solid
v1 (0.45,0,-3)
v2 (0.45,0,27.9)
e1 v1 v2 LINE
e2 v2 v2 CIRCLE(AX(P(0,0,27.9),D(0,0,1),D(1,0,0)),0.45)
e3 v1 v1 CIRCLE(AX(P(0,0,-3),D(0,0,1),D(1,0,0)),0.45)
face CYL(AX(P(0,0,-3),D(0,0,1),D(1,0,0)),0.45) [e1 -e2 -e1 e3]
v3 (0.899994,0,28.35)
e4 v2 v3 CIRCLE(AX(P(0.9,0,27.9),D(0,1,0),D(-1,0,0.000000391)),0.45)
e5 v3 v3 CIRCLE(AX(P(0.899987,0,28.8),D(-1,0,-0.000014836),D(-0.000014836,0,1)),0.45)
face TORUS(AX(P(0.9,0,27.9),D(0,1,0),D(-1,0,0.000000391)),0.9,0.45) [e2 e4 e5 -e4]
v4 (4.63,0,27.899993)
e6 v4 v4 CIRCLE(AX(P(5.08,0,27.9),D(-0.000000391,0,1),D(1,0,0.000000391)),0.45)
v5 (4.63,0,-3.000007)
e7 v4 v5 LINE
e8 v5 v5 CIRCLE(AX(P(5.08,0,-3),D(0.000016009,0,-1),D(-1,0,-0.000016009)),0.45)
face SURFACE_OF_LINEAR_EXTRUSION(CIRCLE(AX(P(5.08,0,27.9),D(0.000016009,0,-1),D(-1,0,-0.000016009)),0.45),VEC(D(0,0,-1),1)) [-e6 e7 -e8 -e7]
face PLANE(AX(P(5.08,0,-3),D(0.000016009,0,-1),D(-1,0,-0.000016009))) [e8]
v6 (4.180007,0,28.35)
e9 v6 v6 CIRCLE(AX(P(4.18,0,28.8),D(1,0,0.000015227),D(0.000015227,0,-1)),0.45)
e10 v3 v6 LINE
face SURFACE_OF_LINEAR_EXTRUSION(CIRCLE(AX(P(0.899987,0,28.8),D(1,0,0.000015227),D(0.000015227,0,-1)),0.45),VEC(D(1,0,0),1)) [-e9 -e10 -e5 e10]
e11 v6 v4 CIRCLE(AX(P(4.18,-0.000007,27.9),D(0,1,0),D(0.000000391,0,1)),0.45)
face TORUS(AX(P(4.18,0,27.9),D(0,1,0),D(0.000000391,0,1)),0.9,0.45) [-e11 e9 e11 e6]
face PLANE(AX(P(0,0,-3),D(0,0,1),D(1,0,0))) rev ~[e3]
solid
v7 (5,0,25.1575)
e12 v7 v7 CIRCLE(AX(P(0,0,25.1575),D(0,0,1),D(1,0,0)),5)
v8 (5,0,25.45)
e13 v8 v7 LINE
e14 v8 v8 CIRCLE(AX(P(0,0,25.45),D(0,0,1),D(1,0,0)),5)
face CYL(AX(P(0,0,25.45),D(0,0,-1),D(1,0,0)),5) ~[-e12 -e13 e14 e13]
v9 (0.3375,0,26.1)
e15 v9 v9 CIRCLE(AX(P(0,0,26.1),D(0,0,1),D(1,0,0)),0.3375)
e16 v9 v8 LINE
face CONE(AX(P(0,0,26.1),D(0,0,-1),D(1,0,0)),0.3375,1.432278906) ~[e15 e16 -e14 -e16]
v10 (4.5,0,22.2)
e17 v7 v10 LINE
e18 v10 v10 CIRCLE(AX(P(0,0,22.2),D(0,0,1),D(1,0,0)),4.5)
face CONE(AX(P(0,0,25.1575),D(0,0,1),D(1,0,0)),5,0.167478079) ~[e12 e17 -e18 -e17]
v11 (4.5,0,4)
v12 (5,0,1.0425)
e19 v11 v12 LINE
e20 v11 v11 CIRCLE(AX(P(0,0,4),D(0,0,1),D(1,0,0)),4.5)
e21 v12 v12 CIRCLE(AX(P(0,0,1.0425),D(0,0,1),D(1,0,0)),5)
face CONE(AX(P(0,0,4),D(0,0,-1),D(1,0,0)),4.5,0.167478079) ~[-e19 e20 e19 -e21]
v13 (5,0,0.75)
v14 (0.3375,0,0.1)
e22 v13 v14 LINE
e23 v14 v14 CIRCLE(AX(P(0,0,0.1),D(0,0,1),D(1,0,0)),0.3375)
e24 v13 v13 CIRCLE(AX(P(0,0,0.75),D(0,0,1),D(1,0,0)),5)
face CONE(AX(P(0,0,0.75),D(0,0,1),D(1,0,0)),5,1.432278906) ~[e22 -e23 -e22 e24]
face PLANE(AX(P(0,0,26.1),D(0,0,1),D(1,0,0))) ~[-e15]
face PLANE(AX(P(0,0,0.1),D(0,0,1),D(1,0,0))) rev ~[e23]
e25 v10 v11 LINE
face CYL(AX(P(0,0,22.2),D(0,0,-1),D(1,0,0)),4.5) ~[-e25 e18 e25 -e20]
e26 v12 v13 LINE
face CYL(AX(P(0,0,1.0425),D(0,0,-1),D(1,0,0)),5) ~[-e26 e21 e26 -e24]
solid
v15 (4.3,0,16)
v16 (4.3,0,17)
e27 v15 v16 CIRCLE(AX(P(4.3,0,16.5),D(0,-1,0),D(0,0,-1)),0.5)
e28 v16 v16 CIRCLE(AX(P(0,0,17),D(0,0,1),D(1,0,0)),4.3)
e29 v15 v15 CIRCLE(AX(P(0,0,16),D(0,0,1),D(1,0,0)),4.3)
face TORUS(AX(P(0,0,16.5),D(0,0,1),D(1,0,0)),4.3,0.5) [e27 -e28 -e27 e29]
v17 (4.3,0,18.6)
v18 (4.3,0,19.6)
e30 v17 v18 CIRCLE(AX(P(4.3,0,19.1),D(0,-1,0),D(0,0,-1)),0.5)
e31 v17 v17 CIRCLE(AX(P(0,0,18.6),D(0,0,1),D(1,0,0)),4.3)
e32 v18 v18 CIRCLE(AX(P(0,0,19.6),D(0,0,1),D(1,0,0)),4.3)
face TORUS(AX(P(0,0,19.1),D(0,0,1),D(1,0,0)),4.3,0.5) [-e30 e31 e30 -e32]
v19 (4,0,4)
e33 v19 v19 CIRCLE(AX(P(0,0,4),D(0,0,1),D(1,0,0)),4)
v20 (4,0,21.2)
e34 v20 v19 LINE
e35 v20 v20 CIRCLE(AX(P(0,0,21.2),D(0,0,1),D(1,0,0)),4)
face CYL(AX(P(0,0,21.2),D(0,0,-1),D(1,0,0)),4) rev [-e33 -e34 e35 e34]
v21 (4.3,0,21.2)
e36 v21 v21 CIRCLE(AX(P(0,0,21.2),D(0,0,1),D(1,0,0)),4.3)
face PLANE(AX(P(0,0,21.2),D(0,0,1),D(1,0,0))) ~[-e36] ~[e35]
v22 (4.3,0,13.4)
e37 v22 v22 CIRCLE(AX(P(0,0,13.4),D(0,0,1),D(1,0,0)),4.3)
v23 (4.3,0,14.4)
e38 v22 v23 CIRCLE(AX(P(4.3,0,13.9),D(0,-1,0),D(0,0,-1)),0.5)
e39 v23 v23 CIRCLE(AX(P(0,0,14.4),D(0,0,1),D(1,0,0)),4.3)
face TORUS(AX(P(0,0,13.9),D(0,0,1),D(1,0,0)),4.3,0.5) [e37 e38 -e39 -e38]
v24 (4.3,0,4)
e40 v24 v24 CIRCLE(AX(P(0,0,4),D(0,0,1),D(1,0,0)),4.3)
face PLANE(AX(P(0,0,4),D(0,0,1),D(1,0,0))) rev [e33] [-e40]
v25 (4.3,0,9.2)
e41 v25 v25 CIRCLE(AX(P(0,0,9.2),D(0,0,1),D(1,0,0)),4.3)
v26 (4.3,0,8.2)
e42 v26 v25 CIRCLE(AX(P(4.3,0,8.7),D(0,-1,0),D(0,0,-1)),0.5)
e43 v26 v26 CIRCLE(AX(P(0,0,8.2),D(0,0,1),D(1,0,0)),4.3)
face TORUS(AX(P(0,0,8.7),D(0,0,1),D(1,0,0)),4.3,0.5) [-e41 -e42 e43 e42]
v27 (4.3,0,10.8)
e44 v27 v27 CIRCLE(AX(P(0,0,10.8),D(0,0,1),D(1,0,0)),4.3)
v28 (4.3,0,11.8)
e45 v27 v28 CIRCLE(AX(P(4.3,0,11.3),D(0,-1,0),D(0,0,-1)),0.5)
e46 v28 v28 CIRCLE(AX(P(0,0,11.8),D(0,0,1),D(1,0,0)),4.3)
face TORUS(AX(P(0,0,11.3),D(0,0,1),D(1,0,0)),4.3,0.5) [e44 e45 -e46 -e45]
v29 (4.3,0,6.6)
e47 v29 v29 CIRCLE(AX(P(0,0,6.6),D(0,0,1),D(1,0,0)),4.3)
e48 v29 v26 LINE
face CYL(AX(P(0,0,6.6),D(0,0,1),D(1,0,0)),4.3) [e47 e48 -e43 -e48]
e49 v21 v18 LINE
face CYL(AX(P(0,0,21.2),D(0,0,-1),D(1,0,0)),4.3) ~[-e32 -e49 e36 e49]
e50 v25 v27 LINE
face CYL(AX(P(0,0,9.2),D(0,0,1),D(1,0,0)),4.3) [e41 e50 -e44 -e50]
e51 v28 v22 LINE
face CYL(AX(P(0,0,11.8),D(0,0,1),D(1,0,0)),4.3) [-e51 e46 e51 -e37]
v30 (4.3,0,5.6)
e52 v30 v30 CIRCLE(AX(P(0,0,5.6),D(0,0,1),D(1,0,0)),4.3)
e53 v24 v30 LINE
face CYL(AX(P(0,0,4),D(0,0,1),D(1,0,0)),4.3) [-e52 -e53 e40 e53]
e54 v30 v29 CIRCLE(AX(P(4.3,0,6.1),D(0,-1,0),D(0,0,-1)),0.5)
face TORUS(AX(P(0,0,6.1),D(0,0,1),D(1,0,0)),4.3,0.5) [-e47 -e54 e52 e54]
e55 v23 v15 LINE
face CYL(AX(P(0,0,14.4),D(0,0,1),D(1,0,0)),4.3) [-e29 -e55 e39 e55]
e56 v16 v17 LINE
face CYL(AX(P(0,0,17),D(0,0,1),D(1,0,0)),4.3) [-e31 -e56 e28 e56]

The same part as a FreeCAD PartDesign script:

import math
import FreeCAD as App
import Part
import Sketcher
from FreeCAD import Vector
Q = App.Units.Quantity


def add_polygon(sketch, points):
    """Adds a closed chain of lines whose ends are joined by coincident constraints."""
    first, n = sketch.GeometryCount, len(points)
    for a, b in zip(points, points[1:] + points[:1]):
        sketch.addGeometry(Part.LineSegment(App.Vector(*a, 0), App.Vector(*b, 0)), False)
    for i in range(n):
        sketch.addConstraint(Sketcher.Constraint("Coincident", first + i, 2, first + (i + 1) % n, 1))

doc = App.newDocument("Part")
body = doc.addObject("PartDesign::Body", "Body")

# Sketch on XY plane
sketch1 = body.newObject("Sketcher::SketchObject", "Sketch")
sketch1.AttachmentSupport = (doc.getObject("XY_Plane"), [""])
sketch1.MapMode = "FlatFace"
sketch1.AttachmentOffset = App.Placement(Vector(0, 0, -2), App.Rotation())
sketch1.addGeometry(Part.Circle(Vector(0, 0, 0), Vector(0, 0, 1), 0.45), False)
sketch1.addConstraint([
    Sketcher.Constraint("Coincident", 0, 3, -1, 1),
    Sketcher.Constraint("Diameter", 0, Q("0.9 mm")),
])

# Sketch on XZ plane
sketch2 = body.newObject("Sketcher::SketchObject", "Sketch001")
sketch2.AttachmentSupport = (doc.getObject("XZ_Plane"), [""])
sketch2.MapMode = "FlatFace"
sketch2.addGeometry([
    Part.LineSegment(Vector(0, -3, 0), Vector(0, 27.9, 0)),  # 0
    Part.ArcOfCircle(Part.Circle(Vector(0.9, 27.9, 0), Vector(0, 0, 1), 0.9), math.radians(90), math.radians(180)),  # 1
    Part.LineSegment(Vector(0.9, 28.8, 0), Vector(4.2, 28.8, 0)),  # 2
    Part.ArcOfCircle(Part.Circle(Vector(4.2, 27.9, 0), Vector(0, 0, 1), 0.9), math.radians(0), math.radians(90)),  # 3
    Part.LineSegment(Vector(5.1, 27.9, 0), Vector(5.1, -3, 0)),  # 4
], False)
sketch2.addConstraint([
    Sketcher.Constraint("Tangent", 0, 2, 1, 2),
    Sketcher.Constraint("Coincident", 1, 1, 2, 1),
    Sketcher.Constraint("Tangent", 2, 2, 3, 2),
    Sketcher.Constraint("Tangent", 3, 1, 4, 1),
    Sketcher.Constraint("Vertical", 0),
    Sketcher.Constraint("Horizontal", 2),
    Sketcher.Constraint("Vertical", 4),
    Sketcher.Constraint("Equal", 1, 3),
    Sketcher.Constraint("PointOnObject", 0, 1, -2),
    Sketcher.Constraint("Horizontal", 0, 1, 4, 2),
    Sketcher.Constraint("Radius", 1, Q("0.9 mm")),
    Sketcher.Constraint("DistanceY", 0, 1, 0, 2, Q("30.9 mm")),
    Sketcher.Constraint("DistanceY", 0, 1, -1, 1, Q("3 mm")),
    Sketcher.Constraint("DistanceX", -1, 1, 3, 3, Q("4.18 mm")),
    Sketcher.Constraint("DistanceX", 2, 1, 2, 2, Q("3.280013 mm")),
])
doc.recompute()

additivepipe = body.newObject("PartDesign::AdditivePipe", "AdditivePipe")
additivepipe.Profile = sketch1
additivepipe.Spine = (sketch2, ["Edge1", "Edge2", "Edge3", "Edge4", "Edge5"])
body2 = doc.addObject("PartDesign::Body", "Body001")

# Sketch on XZ plane
sketch3 = body2.newObject("Sketcher::SketchObject", "Sketch002")
sketch3.AttachmentSupport = (doc.getObject("XZ_Plane001"), [""])
sketch3.MapMode = "FlatFace"
add_polygon(sketch3, [(0, 26.1), (0, 0.1), (0.34, 0.1), (5, 0.75), (5, 1.04), (4.5, 4), (4.5, 22.2), (5, 25.16), (5, 25.45), (0.34, 26.1)])  # lines 0-9
sketch3.addConstraint([
    Sketcher.Constraint("Vertical", 0),
    Sketcher.Constraint("Horizontal", 1),
    Sketcher.Constraint("Vertical", 3),
    Sketcher.Constraint("Vertical", 5),
    Sketcher.Constraint("Vertical", 7),
    Sketcher.Constraint("Horizontal", 9),
    Sketcher.Constraint("PointOnObject", 0, 2, -2),
    Sketcher.Constraint("Vertical", 3, 2, 6, 2),
    Sketcher.Constraint("Vertical", 1, 2, 8, 2),
    Sketcher.Constraint("Equal", 3, 7),
    Sketcher.Constraint("Equal", 4, 6),
    Sketcher.Constraint("Equal", 2, 8),
    Sketcher.Constraint("DistanceY", 0, 2, 0, 1, Q("26 mm")),
    Sketcher.Constraint("DistanceY", 5, 1, 5, 2, Q("18.2 mm")),
    Sketcher.Constraint("DistanceX", -1, 1, 2, 2, Q("5 mm")),
    Sketcher.Constraint("DistanceY", -1, 1, 4, 2, Q("4 mm")),
    Sketcher.Constraint("DistanceX", -1, 1, 4, 2, Q("4.5 mm")),
    Sketcher.Constraint("DistanceY", 2, 2, 7, 2, Q("24.7 mm")),
    Sketcher.Constraint("DistanceX", 1, 1, 1, 2, Q("0.3375 mm")),
    Sketcher.Constraint("DistanceY", 3, 1, 3, 2, Q("0.2925 mm")),
])
revolution = body2.newObject("PartDesign::Revolution", "Revolution")
revolution.Profile = sketch3
revolution.ReferenceAxis = (sketch3, ["V_Axis"])
revolution.Angle = 360
body3 = doc.addObject("PartDesign::Body", "Body002")

# Sketch on XZ plane
sketch4 = body3.newObject("Sketcher::SketchObject", "Sketch003")
sketch4.AttachmentSupport = (doc.getObject("XZ_Plane002"), [""])
sketch4.MapMode = "FlatFace"
sketch4.addGeometry([
    Part.LineSegment(Vector(4, 21.2, 0), Vector(4, 4, 0)),  # 0
    Part.LineSegment(Vector(4, 4, 0), Vector(4.3, 4, 0)),  # 1
    Part.LineSegment(Vector(4.3, 4, 0), Vector(4.3, 5.6, 0)),  # 2
    Part.ArcOfCircle(Part.Circle(Vector(4.3, 6.1, 0), Vector(0, 0, 1), 0.5), math.radians(-90), math.radians(90)),  # 3
    Part.LineSegment(Vector(4.3, 6.6, 0), Vector(4.3, 8.2, 0)),  # 4
    Part.ArcOfCircle(Part.Circle(Vector(4.3, 8.7, 0), Vector(0, 0, 1), 0.5), math.radians(-90), math.radians(90)),  # 5
    Part.LineSegment(Vector(4.3, 9.2, 0), Vector(4.3, 10.8, 0)),  # 6
    Part.ArcOfCircle(Part.Circle(Vector(4.3, 11.3, 0), Vector(0, 0, 1), 0.5), math.radians(-90), math.radians(90)),  # 7
    Part.LineSegment(Vector(4.3, 11.8, 0), Vector(4.3, 13.4, 0)),  # 8
    Part.ArcOfCircle(Part.Circle(Vector(4.3, 13.9, 0), Vector(0, 0, 1), 0.5), math.radians(-90), math.radians(90)),  # 9
    Part.LineSegment(Vector(4.3, 14.4, 0), Vector(4.3, 16, 0)),  # 10
    Part.ArcOfCircle(Part.Circle(Vector(4.3, 16.5, 0), Vector(0, 0, 1), 0.5), math.radians(-90), math.radians(90)),  # 11
    Part.LineSegment(Vector(4.3, 17, 0), Vector(4.3, 18.6, 0)),  # 12
    Part.ArcOfCircle(Part.Circle(Vector(4.3, 19.1, 0), Vector(0, 0, 1), 0.5), math.radians(-90), math.radians(90)),  # 13
    Part.LineSegment(Vector(4.3, 19.6, 0), Vector(4.3, 21.2, 0)),  # 14
    Part.LineSegment(Vector(4.3, 21.2, 0), Vector(4, 21.2, 0)),  # 15
], False)
sketch4.addConstraint([
    Sketcher.Constraint("Coincident", 0, 2, 1, 1),
    Sketcher.Constraint("Coincident", 1, 2, 2, 1),
    Sketcher.Constraint("Coincident", 2, 2, 3, 1),
    Sketcher.Constraint("Coincident", 3, 2, 4, 1),
    Sketcher.Constraint("Coincident", 4, 2, 5, 1),
    Sketcher.Constraint("Coincident", 5, 2, 6, 1),
    Sketcher.Constraint("Coincident", 6, 2, 7, 1),
    Sketcher.Constraint("Coincident", 7, 2, 8, 1),
    Sketcher.Constraint("Coincident", 8, 2, 9, 1),
    Sketcher.Constraint("Coincident", 9, 2, 10, 1),
    Sketcher.Constraint("Coincident", 10, 2, 11, 1),
    Sketcher.Constraint("Coincident", 11, 2, 12, 1),
    Sketcher.Constraint("Coincident", 12, 2, 13, 1),
    Sketcher.Constraint("Coincident", 13, 2, 14, 1),
    Sketcher.Constraint("Coincident", 14, 2, 15, 1),
    Sketcher.Constraint("Coincident", 15, 2, 0, 1),
    Sketcher.Constraint("Vertical", 0),
    Sketcher.Constraint("Horizontal", 1),
    Sketcher.Constraint("Vertical", 2),
    Sketcher.Constraint("Vertical", 4),
    Sketcher.Constraint("Vertical", 6),
    Sketcher.Constraint("Vertical", 8),
    Sketcher.Constraint("Vertical", 10),
    Sketcher.Constraint("Vertical", 12),
    Sketcher.Constraint("Vertical", 14),
    Sketcher.Constraint("Horizontal", 15),
    Sketcher.Constraint("Equal", 3, 5),
    Sketcher.Constraint("Equal", 5, 7),
    Sketcher.Constraint("Equal", 7, 9),
    Sketcher.Constraint("Equal", 9, 11),
    Sketcher.Constraint("Equal", 11, 13),
    Sketcher.Constraint("Vertical", 3, 3, 5, 3),
    Sketcher.Constraint("Vertical", 5, 3, 7, 3),
    Sketcher.Constraint("Vertical", 7, 3, 9, 3),
    Sketcher.Constraint("Vertical", 9, 3, 11, 3),
    Sketcher.Constraint("Vertical", 11, 3, 13, 3),
    Sketcher.Constraint("Vertical", 13, 3, 1, 2),
    Sketcher.Constraint("Vertical", 2, 2, 3, 2),
    Sketcher.Constraint("Vertical", 4, 2, 5, 2),
    Sketcher.Constraint("Vertical", 6, 2, 7, 2),
    Sketcher.Constraint("Vertical", 8, 2, 9, 2),
    Sketcher.Constraint("Vertical", 10, 2, 11, 2),
    Sketcher.Constraint("Vertical", 12, 2, 13, 2),
    Sketcher.Constraint("Equal", 2, 4),
    Sketcher.Constraint("Equal", 4, 6),
    Sketcher.Constraint("Equal", 6, 8),
    Sketcher.Constraint("Equal", 8, 10),
    Sketcher.Constraint("Equal", 10, 12),
    Sketcher.Constraint("Equal", 12, 14),
    Sketcher.Constraint("Radius", 3, Q("0.5 mm")),
    Sketcher.Constraint("DistanceX", 1, 1, 1, 2, Q("0.3 mm")),
    Sketcher.Constraint("DistanceY", 0, 2, 0, 1, Q("17.2 mm")),
    Sketcher.Constraint("DistanceX", -1, 1, 0, 2, Q("4 mm")),
    Sketcher.Constraint("DistanceY", -1, 1, 0, 2, Q("4 mm")),
])
revolution2 = body3.newObject("PartDesign::Revolution", "Revolution001")
revolution2.Profile = sketch4
revolution2.ReferenceAxis = (sketch4, ["V_Axis"])
revolution2.Angle = 360

doc.recompute()
